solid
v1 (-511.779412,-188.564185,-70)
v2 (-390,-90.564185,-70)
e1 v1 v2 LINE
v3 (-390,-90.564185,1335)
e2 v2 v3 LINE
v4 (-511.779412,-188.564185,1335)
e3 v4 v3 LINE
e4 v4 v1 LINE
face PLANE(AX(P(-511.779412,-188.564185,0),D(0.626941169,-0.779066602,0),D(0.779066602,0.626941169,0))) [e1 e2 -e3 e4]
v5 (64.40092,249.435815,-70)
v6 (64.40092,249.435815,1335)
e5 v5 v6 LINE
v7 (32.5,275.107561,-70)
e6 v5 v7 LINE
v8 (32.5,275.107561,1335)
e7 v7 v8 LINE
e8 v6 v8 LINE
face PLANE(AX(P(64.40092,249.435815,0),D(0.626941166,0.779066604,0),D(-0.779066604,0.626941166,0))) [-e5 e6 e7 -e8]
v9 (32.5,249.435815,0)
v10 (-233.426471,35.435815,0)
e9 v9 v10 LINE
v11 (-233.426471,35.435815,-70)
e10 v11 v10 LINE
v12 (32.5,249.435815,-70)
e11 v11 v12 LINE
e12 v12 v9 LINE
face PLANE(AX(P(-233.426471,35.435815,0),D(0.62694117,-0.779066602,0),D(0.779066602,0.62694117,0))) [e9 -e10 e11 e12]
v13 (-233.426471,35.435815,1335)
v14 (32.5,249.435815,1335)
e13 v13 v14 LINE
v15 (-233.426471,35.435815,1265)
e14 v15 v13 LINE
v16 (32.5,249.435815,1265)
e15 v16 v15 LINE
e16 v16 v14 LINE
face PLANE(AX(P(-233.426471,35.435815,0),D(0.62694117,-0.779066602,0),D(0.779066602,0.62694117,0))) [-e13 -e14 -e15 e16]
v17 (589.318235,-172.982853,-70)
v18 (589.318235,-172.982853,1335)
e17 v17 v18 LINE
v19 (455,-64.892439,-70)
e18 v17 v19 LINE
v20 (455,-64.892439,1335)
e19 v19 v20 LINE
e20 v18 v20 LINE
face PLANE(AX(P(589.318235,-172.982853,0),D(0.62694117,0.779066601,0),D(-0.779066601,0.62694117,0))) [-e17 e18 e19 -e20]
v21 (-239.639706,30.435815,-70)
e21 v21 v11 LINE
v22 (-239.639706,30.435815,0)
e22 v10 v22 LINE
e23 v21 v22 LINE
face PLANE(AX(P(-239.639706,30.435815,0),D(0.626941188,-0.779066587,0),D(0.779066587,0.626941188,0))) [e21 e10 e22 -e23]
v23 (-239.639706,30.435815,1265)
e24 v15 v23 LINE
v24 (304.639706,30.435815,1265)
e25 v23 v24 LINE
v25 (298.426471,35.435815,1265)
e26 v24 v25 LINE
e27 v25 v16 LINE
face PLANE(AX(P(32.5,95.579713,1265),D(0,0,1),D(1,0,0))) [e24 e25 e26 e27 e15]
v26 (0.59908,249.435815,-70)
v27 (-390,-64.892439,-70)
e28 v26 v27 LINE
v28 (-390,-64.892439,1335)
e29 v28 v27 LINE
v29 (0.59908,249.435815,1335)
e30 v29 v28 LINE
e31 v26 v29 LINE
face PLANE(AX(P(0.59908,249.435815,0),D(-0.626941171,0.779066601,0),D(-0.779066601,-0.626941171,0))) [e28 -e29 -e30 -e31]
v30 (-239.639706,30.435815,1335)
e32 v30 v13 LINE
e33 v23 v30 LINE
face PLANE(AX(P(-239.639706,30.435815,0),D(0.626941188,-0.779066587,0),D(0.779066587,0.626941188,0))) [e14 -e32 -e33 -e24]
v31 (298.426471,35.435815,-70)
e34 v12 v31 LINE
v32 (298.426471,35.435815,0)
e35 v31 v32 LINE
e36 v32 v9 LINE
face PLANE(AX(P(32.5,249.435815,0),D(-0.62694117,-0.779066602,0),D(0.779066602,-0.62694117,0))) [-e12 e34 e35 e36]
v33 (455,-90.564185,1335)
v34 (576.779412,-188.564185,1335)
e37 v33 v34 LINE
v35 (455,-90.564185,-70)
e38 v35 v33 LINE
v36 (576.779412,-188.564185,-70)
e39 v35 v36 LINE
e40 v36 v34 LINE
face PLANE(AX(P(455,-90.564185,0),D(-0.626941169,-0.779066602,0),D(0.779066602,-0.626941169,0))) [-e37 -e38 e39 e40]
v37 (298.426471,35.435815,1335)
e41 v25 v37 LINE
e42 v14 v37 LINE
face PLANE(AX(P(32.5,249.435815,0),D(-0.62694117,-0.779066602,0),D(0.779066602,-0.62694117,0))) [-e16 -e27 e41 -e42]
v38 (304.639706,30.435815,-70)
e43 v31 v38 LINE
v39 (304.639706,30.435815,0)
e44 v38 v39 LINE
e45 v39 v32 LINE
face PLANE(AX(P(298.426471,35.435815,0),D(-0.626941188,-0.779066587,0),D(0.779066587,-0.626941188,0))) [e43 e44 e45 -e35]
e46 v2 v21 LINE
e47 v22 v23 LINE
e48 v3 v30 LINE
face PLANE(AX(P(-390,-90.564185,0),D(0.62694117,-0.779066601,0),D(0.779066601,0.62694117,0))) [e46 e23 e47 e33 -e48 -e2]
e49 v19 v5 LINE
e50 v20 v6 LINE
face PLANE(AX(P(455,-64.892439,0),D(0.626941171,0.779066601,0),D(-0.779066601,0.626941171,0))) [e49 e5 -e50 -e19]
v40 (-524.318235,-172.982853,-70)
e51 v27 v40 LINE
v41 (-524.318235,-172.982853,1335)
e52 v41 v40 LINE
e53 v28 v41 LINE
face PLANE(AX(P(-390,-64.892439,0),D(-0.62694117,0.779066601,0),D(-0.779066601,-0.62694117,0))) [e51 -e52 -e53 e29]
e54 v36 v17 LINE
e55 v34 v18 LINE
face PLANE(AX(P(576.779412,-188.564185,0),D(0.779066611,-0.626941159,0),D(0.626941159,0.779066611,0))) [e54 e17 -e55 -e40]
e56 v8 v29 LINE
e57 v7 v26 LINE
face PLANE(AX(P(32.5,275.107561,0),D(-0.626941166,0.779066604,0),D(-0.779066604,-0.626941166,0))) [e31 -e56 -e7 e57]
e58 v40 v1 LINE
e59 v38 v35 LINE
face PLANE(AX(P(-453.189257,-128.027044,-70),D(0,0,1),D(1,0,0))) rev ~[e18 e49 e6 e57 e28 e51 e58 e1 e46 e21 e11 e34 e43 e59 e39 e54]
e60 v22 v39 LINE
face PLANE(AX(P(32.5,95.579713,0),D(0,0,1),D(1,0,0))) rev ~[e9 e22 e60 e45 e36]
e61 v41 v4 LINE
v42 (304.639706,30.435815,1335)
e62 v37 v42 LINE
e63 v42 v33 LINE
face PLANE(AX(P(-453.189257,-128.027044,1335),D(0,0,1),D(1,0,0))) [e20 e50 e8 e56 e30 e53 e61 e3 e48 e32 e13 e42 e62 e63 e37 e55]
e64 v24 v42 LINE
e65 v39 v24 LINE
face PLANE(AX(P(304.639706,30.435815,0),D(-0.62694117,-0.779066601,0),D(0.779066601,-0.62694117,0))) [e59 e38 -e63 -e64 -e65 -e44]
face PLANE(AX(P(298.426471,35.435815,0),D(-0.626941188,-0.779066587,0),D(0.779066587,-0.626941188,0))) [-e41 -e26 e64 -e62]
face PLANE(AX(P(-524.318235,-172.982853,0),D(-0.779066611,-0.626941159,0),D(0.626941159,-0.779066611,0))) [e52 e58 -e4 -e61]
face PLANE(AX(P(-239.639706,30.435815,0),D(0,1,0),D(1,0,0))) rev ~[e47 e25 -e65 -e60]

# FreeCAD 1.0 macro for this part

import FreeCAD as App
import Part
import Sketcher
from FreeCAD import Vector

doc = App.newDocument("Part")
body = doc.addObject("PartDesign::Body", "Body")

# Sketch on XY plane
sketch1 = body.newObject("Sketcher::SketchObject", "Sketch")
sketch1.AttachmentSupport = (doc.getObject("XY_Plane"), [""])
sketch1.MapMode = "FlatFace"
sketch1.addGeometry(Part.LineSegment(Vector(-511.779412, -188.564185, 0), Vector(-390, -90.564185, 0)), False)
sketch1.addGeometry(Part.LineSegment(Vector(-390, -90.564185, 0), Vector(-239.639706, 30.435815, 0)), False)
sketch1.addGeometry(Part.LineSegment(Vector(-239.639706, 30.435815, 0), Vector(-233.426471, 35.435815, 0)), False)
sketch1.addGeometry(Part.LineSegment(Vector(-233.426471, 35.435815, 0), Vector(32.5, 249.435815, 0)), False)
sketch1.addGeometry(Part.LineSegment(Vector(32.5, 249.435815, 0), Vector(298.426471, 35.435815, 0)), False)
sketch1.addGeometry(Part.LineSegment(Vector(298.426471, 35.435815, 0), Vector(304.639706, 30.435815, 0)), False)
sketch1.addGeometry(Part.LineSegment(Vector(304.639706, 30.435815, 0), Vector(455, -90.564185, 0)), False)
sketch1.addGeometry(Part.LineSegment(Vector(455, -90.564185, 0), Vector(576.779412, -188.564185, 0)), False)
sketch1.addGeometry(Part.LineSegment(Vector(576.779412, -188.564185, 0), Vector(589.318235, -172.982853, 0)), False)
sketch1.addGeometry(Part.LineSegment(Vector(589.318235, -172.982853, 0), Vector(455, -64.892439, 0)), False)
sketch1.addGeometry(Part.LineSegment(Vector(455, -64.892439, 0), Vector(64.40092, 249.435815, 0)), False)
sketch1.addGeometry(Part.LineSegment(Vector(64.40092, 249.435815, 0), Vector(32.5, 275.107561, 0)), False)
sketch1.addGeometry(Part.LineSegment(Vector(32.5, 275.107561, 0), Vector(0.59908, 249.435815, 0)), False)
sketch1.addGeometry(Part.LineSegment(Vector(0.59908, 249.435815, 0), Vector(-390, -64.892439, 0)), False)
sketch1.addGeometry(Part.LineSegment(Vector(-390, -64.892439, 0), Vector(-524.318235, -172.982853, 0)), False)
sketch1.addGeometry(Part.LineSegment(Vector(-524.318235, -172.982853, 0), Vector(-511.779412, -188.564185, 0)), False)
sketch1.addConstraint(Sketcher.Constraint("Coincident", 0, 2, 1, 1))
sketch1.addConstraint(Sketcher.Constraint("Coincident", 1, 2, 2, 1))
sketch1.addConstraint(Sketcher.Constraint("Coincident", 2, 2, 3, 1))
sketch1.addConstraint(Sketcher.Constraint("Coincident", 3, 2, 4, 1))
sketch1.addConstraint(Sketcher.Constraint("Coincident", 4, 2, 5, 1))
sketch1.addConstraint(Sketcher.Constraint("Coincident", 5, 2, 6, 1))
sketch1.addConstraint(Sketcher.Constraint("Coincident", 6, 2, 7, 1))
sketch1.addConstraint(Sketcher.Constraint("Coincident", 7, 2, 8, 1))
sketch1.addConstraint(Sketcher.Constraint("Coincident", 8, 2, 9, 1))
sketch1.addConstraint(Sketcher.Constraint("Coincident", 9, 2, 10, 1))
sketch1.addConstraint(Sketcher.Constraint("Coincident", 10, 2, 11, 1))
sketch1.addConstraint(Sketcher.Constraint("Coincident", 11, 2, 12, 1))
sketch1.addConstraint(Sketcher.Constraint("Coincident", 12, 2, 13, 1))
sketch1.addConstraint(Sketcher.Constraint("Coincident", 13, 2, 14, 1))
sketch1.addConstraint(Sketcher.Constraint("Coincident", 14, 2, 15, 1))
sketch1.addConstraint(Sketcher.Constraint("Coincident", 15, 2, 0, 1))
sketch1.addConstraint(Sketcher.Constraint("Parallel", 0, 1))
sketch1.addConstraint(Sketcher.Constraint("Parallel", 1, 2))
sketch1.addConstraint(Sketcher.Constraint("Parallel", 2, 3))
sketch1.addConstraint(Sketcher.Constraint("Parallel", 4, 5))
sketch1.addConstraint(Sketcher.Constraint("Parallel", 5, 6))
sketch1.addConstraint(Sketcher.Constraint("Parallel", 6, 7))
sketch1.addConstraint(Sketcher.Constraint("Perpendicular", 7, 8))
sketch1.addConstraint(Sketcher.Constraint("Perpendicular", 8, 9))
sketch1.addConstraint(Sketcher.Constraint("Parallel", 9, 10))
sketch1.addConstraint(Sketcher.Constraint("Parallel", 10, 11))
sketch1.addConstraint(Sketcher.Constraint("Parallel", 3, 12))
sketch1.addConstraint(Sketcher.Constraint("Parallel", 12, 13))
sketch1.addConstraint(Sketcher.Constraint("Parallel", 13, 14))
sketch1.addConstraint(Sketcher.Constraint("Perpendicular", 14, 15))
sketch1.addConstraint(Sketcher.Constraint("Horizontal", 2, 2, 4, 2))
sketch1.addConstraint(Sketcher.Constraint("Horizontal", 1, 2, 5, 2))
sketch1.addConstraint(Sketcher.Constraint("Horizontal", 0, 2, 6, 2))
sketch1.addConstraint(Sketcher.Constraint("Horizontal", 3, 2, 10, 2))
sketch1.addConstraint(Sketcher.Constraint("Horizontal", 10, 2, 12, 2))
sketch1.addConstraint(Sketcher.Constraint("Horizontal", 9, 2, 13, 2))
sketch1.addConstraint(Sketcher.Constraint("Horizontal", 8, 2, 14, 2))
sketch1.addConstraint(Sketcher.Constraint("Horizontal", 7, 2, 15, 2))
sketch1.addConstraint(Sketcher.Constraint("Vertical", 6, 2, 9, 2))
sketch1.addConstraint(Sketcher.Constraint("Vertical", 3, 2, 11, 2))
sketch1.addConstraint(Sketcher.Constraint("Distance", 8, 20.0))
sketch1.addConstraint(Sketcher.Constraint("DistanceX", 0, 2, -1, 1, 390.0))
sketch1.addConstraint(Sketcher.Constraint("DistanceX", -1, 1, 6, 2, 455.0))
sketch1.addConstraint(Sketcher.Constraint("DistanceY", 0, 2, 1, 2, 121.0))
sketch1.addConstraint(Sketcher.Constraint("DistanceY", 1, 2, 2, 2, 5.0))
sketch1.addConstraint(Sketcher.Constraint("DistanceY", 2, 2, 3, 2, 214.0))
sketch1.addConstraint(Sketcher.Constraint("DistanceY", 7, 2, 6, 2, 98.0))
sketch1.addConstraint(Sketcher.Constraint("DistanceY", 9, 2, -1, 1, 64.892439))
pad1 = body.newObject("PartDesign::Pad", "Pad")
pad1.Profile = sketch1
pad1.Type = "TwoLengths"
pad1.Length = 1335
pad1.Length2 = 70

# Sketch on XY plane
sketch2 = body.newObject("Sketcher::SketchObject", "Sketch001")
sketch2.AttachmentSupport = (doc.getObject("XY_Plane"), [""])
sketch2.MapMode = "FlatFace"
sketch2.addGeometry(Part.LineSegment(Vector(32.5, 249.435815, 0), Vector(-233.426471, 35.435815, 0)), False)
sketch2.addGeometry(Part.LineSegment(Vector(-233.426471, 35.435815, 0), Vector(-239.639706, 30.435815, 0)), False)
sketch2.addGeometry(Part.LineSegment(Vector(-239.639706, 30.435815, 0), Vector(304.639706, 30.435815, 0)), False)
sketch2.addGeometry(Part.LineSegment(Vector(304.639706, 30.435815, 0), Vector(298.426471, 35.435815, 0)), False)
sketch2.addGeometry(Part.LineSegment(Vector(298.426471, 35.435815, 0), Vector(32.5, 249.435815, 0)), False)
sketch2.addConstraint(Sketcher.Constraint("Coincident", 0, 2, 1, 1))
sketch2.addConstraint(Sketcher.Constraint("Coincident", 1, 2, 2, 1))
sketch2.addConstraint(Sketcher.Constraint("Coincident", 2, 2, 3, 1))
sketch2.addConstraint(Sketcher.Constraint("Coincident", 3, 2, 4, 1))
sketch2.addConstraint(Sketcher.Constraint("Coincident", 4, 2, 0, 1))
sketch2.addConstraint(Sketcher.Constraint("Horizontal", 2))
sketch2.addConstraint(Sketcher.Constraint("Parallel", 0, 1))
sketch2.addConstraint(Sketcher.Constraint("Parallel", 3, 4))
sketch2.addConstraint(Sketcher.Constraint("Horizontal", 0, 2, 3, 2))
sketch2.addConstraint(Sketcher.Constraint("Equal", 1, 3))
sketch2.addConstraint(Sketcher.Constraint("DistanceY", 1, 2, 0, 2, 5.0))
sketch2.addConstraint(Sketcher.Constraint("DistanceY", 0, 2, 4, 2, 214.0))
sketch2.addConstraint(Sketcher.Constraint("DistanceX", -1, 1, 4, 2, 32.5))
sketch2.addConstraint(Sketcher.Constraint("DistanceX", 2, 1, 2, 2, 544.279412))
sketch2.addConstraint(Sketcher.Constraint("DistanceY", -1, 1, 0, 2, 35.435815))
pad2 = body.newObject("PartDesign::Pad", "Pad001")
pad2.Profile = sketch2
pad2.Length = 1265

doc.recompute()
